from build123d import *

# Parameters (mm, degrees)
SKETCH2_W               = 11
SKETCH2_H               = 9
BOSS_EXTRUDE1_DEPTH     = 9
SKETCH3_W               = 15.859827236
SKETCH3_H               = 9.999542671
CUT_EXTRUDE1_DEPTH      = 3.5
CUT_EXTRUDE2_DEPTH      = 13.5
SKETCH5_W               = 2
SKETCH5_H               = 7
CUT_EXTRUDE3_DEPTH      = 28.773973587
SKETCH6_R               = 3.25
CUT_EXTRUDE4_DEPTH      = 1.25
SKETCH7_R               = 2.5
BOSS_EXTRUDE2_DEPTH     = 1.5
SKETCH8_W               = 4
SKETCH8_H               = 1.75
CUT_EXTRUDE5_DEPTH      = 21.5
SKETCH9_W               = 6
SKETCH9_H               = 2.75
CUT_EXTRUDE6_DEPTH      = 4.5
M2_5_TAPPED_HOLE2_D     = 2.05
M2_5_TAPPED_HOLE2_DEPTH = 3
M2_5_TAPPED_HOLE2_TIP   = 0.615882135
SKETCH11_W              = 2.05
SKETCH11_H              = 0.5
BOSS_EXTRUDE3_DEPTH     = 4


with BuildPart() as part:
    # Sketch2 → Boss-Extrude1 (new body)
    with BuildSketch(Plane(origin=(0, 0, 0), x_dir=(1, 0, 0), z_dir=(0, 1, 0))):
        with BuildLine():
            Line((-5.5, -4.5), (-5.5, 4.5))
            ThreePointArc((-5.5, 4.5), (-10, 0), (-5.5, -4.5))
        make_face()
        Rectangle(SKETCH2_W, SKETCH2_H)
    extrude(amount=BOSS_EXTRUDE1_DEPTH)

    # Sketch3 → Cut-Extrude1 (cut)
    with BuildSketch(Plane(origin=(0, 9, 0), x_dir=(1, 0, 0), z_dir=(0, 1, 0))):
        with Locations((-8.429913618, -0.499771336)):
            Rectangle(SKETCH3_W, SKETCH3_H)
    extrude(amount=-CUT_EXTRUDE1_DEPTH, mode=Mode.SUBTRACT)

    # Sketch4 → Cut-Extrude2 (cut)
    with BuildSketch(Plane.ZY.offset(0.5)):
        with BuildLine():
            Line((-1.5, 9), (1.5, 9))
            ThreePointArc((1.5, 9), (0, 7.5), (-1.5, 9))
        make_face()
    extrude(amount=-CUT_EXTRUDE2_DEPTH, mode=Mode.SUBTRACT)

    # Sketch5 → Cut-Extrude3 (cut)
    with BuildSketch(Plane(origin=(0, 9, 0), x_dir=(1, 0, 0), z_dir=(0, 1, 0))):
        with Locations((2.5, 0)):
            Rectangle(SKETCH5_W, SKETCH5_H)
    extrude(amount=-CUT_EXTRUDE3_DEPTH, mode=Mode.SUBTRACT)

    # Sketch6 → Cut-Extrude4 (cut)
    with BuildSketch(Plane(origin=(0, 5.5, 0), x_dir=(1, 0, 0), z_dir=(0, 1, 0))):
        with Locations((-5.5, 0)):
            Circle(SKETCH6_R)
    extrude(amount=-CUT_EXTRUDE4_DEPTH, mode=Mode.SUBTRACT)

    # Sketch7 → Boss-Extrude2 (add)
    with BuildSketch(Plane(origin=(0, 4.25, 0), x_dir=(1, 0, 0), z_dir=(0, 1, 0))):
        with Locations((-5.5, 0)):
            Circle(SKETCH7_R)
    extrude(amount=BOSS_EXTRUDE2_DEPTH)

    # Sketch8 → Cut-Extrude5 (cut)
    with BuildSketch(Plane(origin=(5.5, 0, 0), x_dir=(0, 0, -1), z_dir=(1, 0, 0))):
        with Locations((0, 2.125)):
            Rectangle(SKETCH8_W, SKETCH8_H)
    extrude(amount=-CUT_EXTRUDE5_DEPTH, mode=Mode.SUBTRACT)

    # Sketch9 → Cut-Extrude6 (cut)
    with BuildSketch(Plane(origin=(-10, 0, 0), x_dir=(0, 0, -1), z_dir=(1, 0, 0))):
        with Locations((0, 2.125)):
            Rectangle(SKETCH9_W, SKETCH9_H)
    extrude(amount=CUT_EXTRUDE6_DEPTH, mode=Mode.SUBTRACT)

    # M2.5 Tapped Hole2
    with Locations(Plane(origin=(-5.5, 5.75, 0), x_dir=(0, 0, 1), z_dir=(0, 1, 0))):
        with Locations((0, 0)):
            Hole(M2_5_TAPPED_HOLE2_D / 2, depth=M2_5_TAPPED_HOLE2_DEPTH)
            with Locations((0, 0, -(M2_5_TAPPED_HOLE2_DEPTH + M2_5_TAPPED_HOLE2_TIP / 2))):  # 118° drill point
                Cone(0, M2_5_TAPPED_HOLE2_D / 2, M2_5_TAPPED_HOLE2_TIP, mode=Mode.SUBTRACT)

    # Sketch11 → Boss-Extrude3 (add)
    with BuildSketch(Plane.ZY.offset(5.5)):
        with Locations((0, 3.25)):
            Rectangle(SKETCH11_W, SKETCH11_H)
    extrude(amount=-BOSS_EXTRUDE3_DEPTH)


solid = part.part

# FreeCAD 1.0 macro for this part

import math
import FreeCAD as App
import Part
import Sketcher
from FreeCAD import Vector
Q = App.Units.Quantity

doc = App.newDocument("Part")
body = doc.addObject("PartDesign::Body", "Body")

sketch1 = doc.addObject("Sketcher::SketchObject", "Sketch")
body.addObject(sketch1)
sketch1.AttachmentSupport = (doc.XZ_Plane, [""])
sketch1.MapMode = "FlatFace"
sketch1.addGeometry([
    Part.ArcOfCircle(Part.Circle(Vector(-5.5, 0, 0), Vector(0, 0, 1), 4.5), math.radians(90), math.radians(270)),
    Part.LineSegment(Vector(-5.5, 4.5, 0), Vector(5.5, 4.5, 0)),
    Part.LineSegment(Vector(5.5, 4.5, 0), Vector(5.5, -4.5, 0)),
    Part.LineSegment(Vector(5.5, -4.5, 0), Vector(-5.5, -4.5, 0)),
], False)
sketch1.addConstraint([
    Sketcher.Constraint("Tangent", 0, 1, 1, 1),
    Sketcher.Constraint("Coincident", 1, 2, 2, 1),
    Sketcher.Constraint("Coincident", 2, 2, 3, 1),
    Sketcher.Constraint("Tangent", 3, 2, 0, 2),
    Sketcher.Constraint("Horizontal", 1),
    Sketcher.Constraint("Vertical", 2),
    Sketcher.Constraint("Horizontal", 3),
    Sketcher.Constraint("Symmetric", 0, 1, 2, 2, -1, 1),
    Sketcher.Constraint("Radius", 0, Q("4.5 mm")),
    Sketcher.Constraint("DistanceX", 1, 1, 1, 2, Q("11 mm")),
])
pad1 = doc.addObject("PartDesign::Pad", "Pad")
body.addObject(pad1)
pad1.Profile = sketch1
pad1.Length = 9
pad1.Reversed = True

sketch2 = doc.addObject("Sketcher::SketchObject", "Sketch001")
body.addObject(sketch2)
sketch2.AttachmentSupport = (doc.XZ_Plane, [""])
sketch2.MapMode = "FlatFace"
sketch2.AttachmentOffset = App.Placement(Vector(0, 0, -9), App.Rotation())
sketch2.addGeometry([
    Part.LineSegment(Vector(-16.359827, -4.5, 0), Vector(-16.359827, 5.499543, 0)),
    Part.LineSegment(Vector(-16.359827, 5.499543, 0), Vector(-0.5, 5.499543, 0)),
    Part.LineSegment(Vector(-0.5, 5.499543, 0), Vector(-0.5, -4.5, 0)),
    Part.LineSegment(Vector(-0.5, -4.5, 0), Vector(-16.359827, -4.5, 0)),
], False)
sketch2.addConstraint([
    Sketcher.Constraint("Coincident", 0, 2, 1, 1),
    Sketcher.Constraint("Coincident", 1, 2, 2, 1),
    Sketcher.Constraint("Coincident", 2, 2, 3, 1),
    Sketcher.Constraint("Coincident", 3, 2, 0, 1),
    Sketcher.Constraint("Vertical", 0),
    Sketcher.Constraint("Horizontal", 1),
    Sketcher.Constraint("Vertical", 2),
    Sketcher.Constraint("Horizontal", 3),
    Sketcher.Constraint("DistanceX", 1, 2, -1, 1, Q("0.5 mm")),
    Sketcher.Constraint("DistanceY", 2, 2, -1, 1, Q("4.5 mm")),
    Sketcher.Constraint("DistanceX", 1, 1, 1, 2, Q("15.859827 mm")),
    Sketcher.Constraint("DistanceY", 0, 1, 0, 2, Q("9.999543 mm")),
])
pocket1 = doc.addObject("PartDesign::Pocket", "Pocket")
body.addObject(pocket1)
pocket1.Profile = sketch2
pocket1.Length = 3.5
pocket1.Reversed = True

sketch3 = doc.addObject("Sketcher::SketchObject", "Sketch002")
body.addObject(sketch3)
sketch3.AttachmentSupport = (doc.YZ_Plane, [""])
sketch3.MapMode = "FlatFace"
sketch3.AttachmentOffset = App.Placement(Vector(0, 0, -0.5), App.Rotation())
sketch3.addGeometry([
    Part.LineSegment(Vector(9, 1.5, 0), Vector(9, -1.5, 0)),
    Part.ArcOfCircle(Part.Circle(Vector(9, 0, 0), Vector(0, 0, 1), 1.5), math.radians(90), math.radians(270)),
], False)
sketch3.addConstraint([
    Sketcher.Constraint("Coincident", 0, 1, 1, 1),
    Sketcher.Constraint("Coincident", 1, 2, 0, 2),
    Sketcher.Constraint("Vertical", 0),
    Sketcher.Constraint("PointOnObject", 1, 3, -1),
    Sketcher.Constraint("Vertical", 1, 3, 0, 1),
    Sketcher.Constraint("Radius", 1, Q("1.5 mm")),
    Sketcher.Constraint("DistanceX", -1, 1, 1, 3, Q("9 mm")),
])
pocket2 = doc.addObject("PartDesign::Pocket", "Pocket001")
body.addObject(pocket2)
pocket2.Profile = sketch3
pocket2.Length = 13.5
pocket2.Reversed = True

sketch4 = doc.addObject("Sketcher::SketchObject", "Sketch003")
body.addObject(sketch4)
sketch4.AttachmentSupport = (doc.XZ_Plane, [""])
sketch4.MapMode = "FlatFace"
sketch4.AttachmentOffset = App.Placement(Vector(0, 0, -9), App.Rotation())
sketch4.addGeometry([
    Part.LineSegment(Vector(1.5, -3.5, 0), Vector(1.5, 3.5, 0)),
    Part.LineSegment(Vector(1.5, 3.5, 0), Vector(3.5, 3.5, 0)),
    Part.LineSegment(Vector(3.5, 3.5, 0), Vector(3.5, -3.5, 0)),
    Part.LineSegment(Vector(3.5, -3.5, 0), Vector(1.5, -3.5, 0)),
], False)
sketch4.addConstraint([
    Sketcher.Constraint("Coincident", 0, 2, 1, 1),
    Sketcher.Constraint("Coincident", 1, 2, 2, 1),
    Sketcher.Constraint("Coincident", 2, 2, 3, 1),
    Sketcher.Constraint("Coincident", 3, 2, 0, 1),
    Sketcher.Constraint("Vertical", 0),
    Sketcher.Constraint("Horizontal", 1),
    Sketcher.Constraint("Vertical", 2),
    Sketcher.Constraint("Horizontal", 3),
    Sketcher.Constraint("DistanceX", 1, 1, 1, 2, Q("2 mm")),
    Sketcher.Constraint("DistanceY", 0, 1, 0, 2, Q("7 mm")),
    Sketcher.Constraint("DistanceX", -1, 1, 0, 2, Q("1.5 mm")),
    Sketcher.Constraint("DistanceY", -1, 1, 0, 2, Q("3.5 mm")),
])
pocket3 = doc.addObject("PartDesign::Pocket", "Pocket002")
body.addObject(pocket3)
pocket3.Profile = sketch4
pocket3.Length = 28.773974
pocket3.Reversed = True

sketch5 = doc.addObject("Sketcher::SketchObject", "Sketch004")
body.addObject(sketch5)
sketch5.AttachmentSupport = (doc.XZ_Plane, [""])
sketch5.MapMode = "FlatFace"
sketch5.AttachmentOffset = App.Placement(Vector(0, 0, -5.5), App.Rotation())
sketch5.addGeometry(Part.Circle(Vector(-5.5, 0, 0), Vector(0, 0, 1), 3.25), False)
sketch5.addConstraint([
    Sketcher.Constraint("PointOnObject", 0, 3, -1),
    Sketcher.Constraint("Diameter", 0, Q("6.5 mm")),
    Sketcher.Constraint("DistanceX", 0, 3, -1, 1, Q("5.5 mm")),
])
pocket4 = doc.addObject("PartDesign::Pocket", "Pocket003")
body.addObject(pocket4)
pocket4.Profile = sketch5
pocket4.Length = 1.25
pocket4.Reversed = True

sketch6 = doc.addObject("Sketcher::SketchObject", "Sketch005")
body.addObject(sketch6)
sketch6.AttachmentSupport = (doc.XZ_Plane, [""])
sketch6.MapMode = "FlatFace"
sketch6.AttachmentOffset = App.Placement(Vector(0, 0, -4.25), App.Rotation())
sketch6.addGeometry(Part.Circle(Vector(-5.5, 0, 0), Vector(0, 0, 1), 2.5), False)
sketch6.addConstraint([
    Sketcher.Constraint("PointOnObject", 0, 3, -1),
    Sketcher.Constraint("Diameter", 0, Q("5 mm")),
    Sketcher.Constraint("DistanceX", 0, 3, -1, 1, Q("5.5 mm")),
])
pad2 = doc.addObject("PartDesign::Pad", "Pad001")
body.addObject(pad2)
pad2.Profile = sketch6
pad2.Length = 1.5
pad2.Reversed = True

sketch7 = doc.addObject("Sketcher::SketchObject", "Sketch006")
body.addObject(sketch7)
sketch7.AttachmentSupport = (doc.YZ_Plane, [""])
sketch7.MapMode = "FlatFace"
sketch7.AttachmentOffset = App.Placement(Vector(0, 0, 5.5), App.Rotation())
sketch7.addGeometry([
    Part.LineSegment(Vector(3, 2, 0), Vector(1.25, 2, 0)),
    Part.LineSegment(Vector(1.25, 2, 0), Vector(1.25, -2, 0)),
    Part.LineSegment(Vector(1.25, -2, 0), Vector(3, -2, 0)),
    Part.LineSegment(Vector(3, -2, 0), Vector(3, 2, 0)),
], False)
sketch7.addConstraint([
    Sketcher.Constraint("Coincident", 0, 2, 1, 1),
    Sketcher.Constraint("Coincident", 1, 2, 2, 1),
    Sketcher.Constraint("Coincident", 2, 2, 3, 1),
    Sketcher.Constraint("Coincident", 3, 2, 0, 1),
    Sketcher.Constraint("Horizontal", 0),
    Sketcher.Constraint("Vertical", 1),
    Sketcher.Constraint("Horizontal", 2),
    Sketcher.Constraint("Vertical", 3),
    Sketcher.Constraint("DistanceY", 1, 2, 1, 1, Q("4 mm")),
    Sketcher.Constraint("DistanceY", -1, 1, 0, 2, Q("2 mm")),
    Sketcher.Constraint("DistanceX", -1, 1, 2, 2, Q("3 mm")),
    Sketcher.Constraint("DistanceX", 0, 2, 0, 1, Q("1.75 mm")),
])
pocket5 = doc.addObject("PartDesign::Pocket", "Pocket004")
body.addObject(pocket5)
pocket5.Profile = sketch7
pocket5.Length = 21.5

sketch8 = doc.addObject("Sketcher::SketchObject", "Sketch007")
body.addObject(sketch8)
sketch8.AttachmentSupport = (doc.YZ_Plane, [""])
sketch8.MapMode = "FlatFace"
sketch8.AttachmentOffset = App.Placement(Vector(0, 0, -10), App.Rotation())
sketch8.addGeometry([
    Part.LineSegment(Vector(3.5, 3, 0), Vector(0.75, 3, 0)),
    Part.LineSegment(Vector(0.75, 3, 0), Vector(0.75, -3, 0)),
    Part.LineSegment(Vector(0.75, -3, 0), Vector(3.5, -3, 0)),
    Part.LineSegment(Vector(3.5, -3, 0), Vector(3.5, 3, 0)),
], False)
sketch8.addConstraint([
    Sketcher.Constraint("Coincident", 0, 2, 1, 1),
    Sketcher.Constraint("Coincident", 1, 2, 2, 1),
    Sketcher.Constraint("Coincident", 2, 2, 3, 1),
    Sketcher.Constraint("Coincident", 3, 2, 0, 1),
    Sketcher.Constraint("Horizontal", 0),
    Sketcher.Constraint("Vertical", 1),
    Sketcher.Constraint("Horizontal", 2),
    Sketcher.Constraint("Vertical", 3),
    Sketcher.Constraint("DistanceY", 1, 2, 1, 1, Q("6 mm")),
    Sketcher.Constraint("DistanceY", -1, 1, 0, 2, Q("3 mm")),
    Sketcher.Constraint("DistanceX", 0, 2, 0, 1, Q("2.75 mm")),
    Sketcher.Constraint("DistanceX", -1, 1, 2, 2, Q("3.5 mm")),
])
pocket6 = doc.addObject("PartDesign::Pocket", "Pocket005")
body.addObject(pocket6)
pocket6.Profile = sketch8
pocket6.Length = 4.5
pocket6.Reversed = True

sketch9 = doc.addObject("Sketcher::SketchObject", "Sketch008")
body.addObject(sketch9)
sketch9.AttachmentSupport = (doc.XZ_Plane, [""])
sketch9.MapMode = "FlatFace"
sketch9.AttachmentOffset = App.Placement(Vector(0, 0, -5.75), App.Rotation())
sketch9.addGeometry(Part.Circle(Vector(-5.5, 0, 0), Vector(0, 0, 1), 1.025), False)
sketch9.addConstraint([
    Sketcher.Constraint("PointOnObject", 0, 3, -1),
    Sketcher.Constraint("Diameter", 0, Q("2.05 mm")),
    Sketcher.Constraint("DistanceX", 0, 3, -1, 1, Q("5.5 mm")),
])
doc.recompute()
hole = doc.addObject("PartDesign::Hole", "Hole")
body.addObject(hole)
hole.Profile = sketch9
hole.ThreadType = "None"
hole.Diameter = 2.05
hole.DepthType = "Dimension"
hole.Depth = 3
hole.DrillPoint = "Angled"
hole.DrillPointAngle = 118
hole.Reversed = True

sketch10 = doc.addObject("Sketcher::SketchObject", "Sketch009")
body.addObject(sketch10)
sketch10.AttachmentSupport = (doc.YZ_Plane, [""])
sketch10.MapMode = "FlatFace"
sketch10.AttachmentOffset = App.Placement(Vector(0, 0, -5.5), App.Rotation())
sketch10.addGeometry([
    Part.LineSegment(Vector(3.5, -1.025, 0), Vector(3, -1.025, 0)),
    Part.LineSegment(Vector(3, -1.025, 0), Vector(3, 1.025, 0)),
    Part.LineSegment(Vector(3, 1.025, 0), Vector(3.5, 1.025, 0)),
    Part.LineSegment(Vector(3.5, 1.025, 0), Vector(3.5, -1.025, 0)),
], False)
sketch10.addConstraint([
    Sketcher.Constraint("Coincident", 0, 2, 1, 1),
    Sketcher.Constraint("Coincident", 1, 2, 2, 1),
    Sketcher.Constraint("Coincident", 2, 2, 3, 1),
    Sketcher.Constraint("Coincident", 3, 2, 0, 1),
    Sketcher.Constraint("Horizontal", 0),
    Sketcher.Constraint("Vertical", 1),
    Sketcher.Constraint("Horizontal", 2),
    Sketcher.Constraint("Vertical", 3),
    Sketcher.Constraint("DistanceX", 0, 2, 0, 1, Q("0.5 mm")),
    Sketcher.Constraint("DistanceX", -1, 1, 0, 2, Q("3 mm")),
    Sketcher.Constraint("DistanceY", 1, 1, 1, 2, Q("2.05 mm")),
    Sketcher.Constraint("DistanceY", 0, 2, -1, 1, Q("1.025 mm")),
])
pad3 = doc.addObject("PartDesign::Pad", "Pad002")
body.addObject(pad3)
pad3.Profile = sketch10
pad3.Length = 4

doc.recompute()
